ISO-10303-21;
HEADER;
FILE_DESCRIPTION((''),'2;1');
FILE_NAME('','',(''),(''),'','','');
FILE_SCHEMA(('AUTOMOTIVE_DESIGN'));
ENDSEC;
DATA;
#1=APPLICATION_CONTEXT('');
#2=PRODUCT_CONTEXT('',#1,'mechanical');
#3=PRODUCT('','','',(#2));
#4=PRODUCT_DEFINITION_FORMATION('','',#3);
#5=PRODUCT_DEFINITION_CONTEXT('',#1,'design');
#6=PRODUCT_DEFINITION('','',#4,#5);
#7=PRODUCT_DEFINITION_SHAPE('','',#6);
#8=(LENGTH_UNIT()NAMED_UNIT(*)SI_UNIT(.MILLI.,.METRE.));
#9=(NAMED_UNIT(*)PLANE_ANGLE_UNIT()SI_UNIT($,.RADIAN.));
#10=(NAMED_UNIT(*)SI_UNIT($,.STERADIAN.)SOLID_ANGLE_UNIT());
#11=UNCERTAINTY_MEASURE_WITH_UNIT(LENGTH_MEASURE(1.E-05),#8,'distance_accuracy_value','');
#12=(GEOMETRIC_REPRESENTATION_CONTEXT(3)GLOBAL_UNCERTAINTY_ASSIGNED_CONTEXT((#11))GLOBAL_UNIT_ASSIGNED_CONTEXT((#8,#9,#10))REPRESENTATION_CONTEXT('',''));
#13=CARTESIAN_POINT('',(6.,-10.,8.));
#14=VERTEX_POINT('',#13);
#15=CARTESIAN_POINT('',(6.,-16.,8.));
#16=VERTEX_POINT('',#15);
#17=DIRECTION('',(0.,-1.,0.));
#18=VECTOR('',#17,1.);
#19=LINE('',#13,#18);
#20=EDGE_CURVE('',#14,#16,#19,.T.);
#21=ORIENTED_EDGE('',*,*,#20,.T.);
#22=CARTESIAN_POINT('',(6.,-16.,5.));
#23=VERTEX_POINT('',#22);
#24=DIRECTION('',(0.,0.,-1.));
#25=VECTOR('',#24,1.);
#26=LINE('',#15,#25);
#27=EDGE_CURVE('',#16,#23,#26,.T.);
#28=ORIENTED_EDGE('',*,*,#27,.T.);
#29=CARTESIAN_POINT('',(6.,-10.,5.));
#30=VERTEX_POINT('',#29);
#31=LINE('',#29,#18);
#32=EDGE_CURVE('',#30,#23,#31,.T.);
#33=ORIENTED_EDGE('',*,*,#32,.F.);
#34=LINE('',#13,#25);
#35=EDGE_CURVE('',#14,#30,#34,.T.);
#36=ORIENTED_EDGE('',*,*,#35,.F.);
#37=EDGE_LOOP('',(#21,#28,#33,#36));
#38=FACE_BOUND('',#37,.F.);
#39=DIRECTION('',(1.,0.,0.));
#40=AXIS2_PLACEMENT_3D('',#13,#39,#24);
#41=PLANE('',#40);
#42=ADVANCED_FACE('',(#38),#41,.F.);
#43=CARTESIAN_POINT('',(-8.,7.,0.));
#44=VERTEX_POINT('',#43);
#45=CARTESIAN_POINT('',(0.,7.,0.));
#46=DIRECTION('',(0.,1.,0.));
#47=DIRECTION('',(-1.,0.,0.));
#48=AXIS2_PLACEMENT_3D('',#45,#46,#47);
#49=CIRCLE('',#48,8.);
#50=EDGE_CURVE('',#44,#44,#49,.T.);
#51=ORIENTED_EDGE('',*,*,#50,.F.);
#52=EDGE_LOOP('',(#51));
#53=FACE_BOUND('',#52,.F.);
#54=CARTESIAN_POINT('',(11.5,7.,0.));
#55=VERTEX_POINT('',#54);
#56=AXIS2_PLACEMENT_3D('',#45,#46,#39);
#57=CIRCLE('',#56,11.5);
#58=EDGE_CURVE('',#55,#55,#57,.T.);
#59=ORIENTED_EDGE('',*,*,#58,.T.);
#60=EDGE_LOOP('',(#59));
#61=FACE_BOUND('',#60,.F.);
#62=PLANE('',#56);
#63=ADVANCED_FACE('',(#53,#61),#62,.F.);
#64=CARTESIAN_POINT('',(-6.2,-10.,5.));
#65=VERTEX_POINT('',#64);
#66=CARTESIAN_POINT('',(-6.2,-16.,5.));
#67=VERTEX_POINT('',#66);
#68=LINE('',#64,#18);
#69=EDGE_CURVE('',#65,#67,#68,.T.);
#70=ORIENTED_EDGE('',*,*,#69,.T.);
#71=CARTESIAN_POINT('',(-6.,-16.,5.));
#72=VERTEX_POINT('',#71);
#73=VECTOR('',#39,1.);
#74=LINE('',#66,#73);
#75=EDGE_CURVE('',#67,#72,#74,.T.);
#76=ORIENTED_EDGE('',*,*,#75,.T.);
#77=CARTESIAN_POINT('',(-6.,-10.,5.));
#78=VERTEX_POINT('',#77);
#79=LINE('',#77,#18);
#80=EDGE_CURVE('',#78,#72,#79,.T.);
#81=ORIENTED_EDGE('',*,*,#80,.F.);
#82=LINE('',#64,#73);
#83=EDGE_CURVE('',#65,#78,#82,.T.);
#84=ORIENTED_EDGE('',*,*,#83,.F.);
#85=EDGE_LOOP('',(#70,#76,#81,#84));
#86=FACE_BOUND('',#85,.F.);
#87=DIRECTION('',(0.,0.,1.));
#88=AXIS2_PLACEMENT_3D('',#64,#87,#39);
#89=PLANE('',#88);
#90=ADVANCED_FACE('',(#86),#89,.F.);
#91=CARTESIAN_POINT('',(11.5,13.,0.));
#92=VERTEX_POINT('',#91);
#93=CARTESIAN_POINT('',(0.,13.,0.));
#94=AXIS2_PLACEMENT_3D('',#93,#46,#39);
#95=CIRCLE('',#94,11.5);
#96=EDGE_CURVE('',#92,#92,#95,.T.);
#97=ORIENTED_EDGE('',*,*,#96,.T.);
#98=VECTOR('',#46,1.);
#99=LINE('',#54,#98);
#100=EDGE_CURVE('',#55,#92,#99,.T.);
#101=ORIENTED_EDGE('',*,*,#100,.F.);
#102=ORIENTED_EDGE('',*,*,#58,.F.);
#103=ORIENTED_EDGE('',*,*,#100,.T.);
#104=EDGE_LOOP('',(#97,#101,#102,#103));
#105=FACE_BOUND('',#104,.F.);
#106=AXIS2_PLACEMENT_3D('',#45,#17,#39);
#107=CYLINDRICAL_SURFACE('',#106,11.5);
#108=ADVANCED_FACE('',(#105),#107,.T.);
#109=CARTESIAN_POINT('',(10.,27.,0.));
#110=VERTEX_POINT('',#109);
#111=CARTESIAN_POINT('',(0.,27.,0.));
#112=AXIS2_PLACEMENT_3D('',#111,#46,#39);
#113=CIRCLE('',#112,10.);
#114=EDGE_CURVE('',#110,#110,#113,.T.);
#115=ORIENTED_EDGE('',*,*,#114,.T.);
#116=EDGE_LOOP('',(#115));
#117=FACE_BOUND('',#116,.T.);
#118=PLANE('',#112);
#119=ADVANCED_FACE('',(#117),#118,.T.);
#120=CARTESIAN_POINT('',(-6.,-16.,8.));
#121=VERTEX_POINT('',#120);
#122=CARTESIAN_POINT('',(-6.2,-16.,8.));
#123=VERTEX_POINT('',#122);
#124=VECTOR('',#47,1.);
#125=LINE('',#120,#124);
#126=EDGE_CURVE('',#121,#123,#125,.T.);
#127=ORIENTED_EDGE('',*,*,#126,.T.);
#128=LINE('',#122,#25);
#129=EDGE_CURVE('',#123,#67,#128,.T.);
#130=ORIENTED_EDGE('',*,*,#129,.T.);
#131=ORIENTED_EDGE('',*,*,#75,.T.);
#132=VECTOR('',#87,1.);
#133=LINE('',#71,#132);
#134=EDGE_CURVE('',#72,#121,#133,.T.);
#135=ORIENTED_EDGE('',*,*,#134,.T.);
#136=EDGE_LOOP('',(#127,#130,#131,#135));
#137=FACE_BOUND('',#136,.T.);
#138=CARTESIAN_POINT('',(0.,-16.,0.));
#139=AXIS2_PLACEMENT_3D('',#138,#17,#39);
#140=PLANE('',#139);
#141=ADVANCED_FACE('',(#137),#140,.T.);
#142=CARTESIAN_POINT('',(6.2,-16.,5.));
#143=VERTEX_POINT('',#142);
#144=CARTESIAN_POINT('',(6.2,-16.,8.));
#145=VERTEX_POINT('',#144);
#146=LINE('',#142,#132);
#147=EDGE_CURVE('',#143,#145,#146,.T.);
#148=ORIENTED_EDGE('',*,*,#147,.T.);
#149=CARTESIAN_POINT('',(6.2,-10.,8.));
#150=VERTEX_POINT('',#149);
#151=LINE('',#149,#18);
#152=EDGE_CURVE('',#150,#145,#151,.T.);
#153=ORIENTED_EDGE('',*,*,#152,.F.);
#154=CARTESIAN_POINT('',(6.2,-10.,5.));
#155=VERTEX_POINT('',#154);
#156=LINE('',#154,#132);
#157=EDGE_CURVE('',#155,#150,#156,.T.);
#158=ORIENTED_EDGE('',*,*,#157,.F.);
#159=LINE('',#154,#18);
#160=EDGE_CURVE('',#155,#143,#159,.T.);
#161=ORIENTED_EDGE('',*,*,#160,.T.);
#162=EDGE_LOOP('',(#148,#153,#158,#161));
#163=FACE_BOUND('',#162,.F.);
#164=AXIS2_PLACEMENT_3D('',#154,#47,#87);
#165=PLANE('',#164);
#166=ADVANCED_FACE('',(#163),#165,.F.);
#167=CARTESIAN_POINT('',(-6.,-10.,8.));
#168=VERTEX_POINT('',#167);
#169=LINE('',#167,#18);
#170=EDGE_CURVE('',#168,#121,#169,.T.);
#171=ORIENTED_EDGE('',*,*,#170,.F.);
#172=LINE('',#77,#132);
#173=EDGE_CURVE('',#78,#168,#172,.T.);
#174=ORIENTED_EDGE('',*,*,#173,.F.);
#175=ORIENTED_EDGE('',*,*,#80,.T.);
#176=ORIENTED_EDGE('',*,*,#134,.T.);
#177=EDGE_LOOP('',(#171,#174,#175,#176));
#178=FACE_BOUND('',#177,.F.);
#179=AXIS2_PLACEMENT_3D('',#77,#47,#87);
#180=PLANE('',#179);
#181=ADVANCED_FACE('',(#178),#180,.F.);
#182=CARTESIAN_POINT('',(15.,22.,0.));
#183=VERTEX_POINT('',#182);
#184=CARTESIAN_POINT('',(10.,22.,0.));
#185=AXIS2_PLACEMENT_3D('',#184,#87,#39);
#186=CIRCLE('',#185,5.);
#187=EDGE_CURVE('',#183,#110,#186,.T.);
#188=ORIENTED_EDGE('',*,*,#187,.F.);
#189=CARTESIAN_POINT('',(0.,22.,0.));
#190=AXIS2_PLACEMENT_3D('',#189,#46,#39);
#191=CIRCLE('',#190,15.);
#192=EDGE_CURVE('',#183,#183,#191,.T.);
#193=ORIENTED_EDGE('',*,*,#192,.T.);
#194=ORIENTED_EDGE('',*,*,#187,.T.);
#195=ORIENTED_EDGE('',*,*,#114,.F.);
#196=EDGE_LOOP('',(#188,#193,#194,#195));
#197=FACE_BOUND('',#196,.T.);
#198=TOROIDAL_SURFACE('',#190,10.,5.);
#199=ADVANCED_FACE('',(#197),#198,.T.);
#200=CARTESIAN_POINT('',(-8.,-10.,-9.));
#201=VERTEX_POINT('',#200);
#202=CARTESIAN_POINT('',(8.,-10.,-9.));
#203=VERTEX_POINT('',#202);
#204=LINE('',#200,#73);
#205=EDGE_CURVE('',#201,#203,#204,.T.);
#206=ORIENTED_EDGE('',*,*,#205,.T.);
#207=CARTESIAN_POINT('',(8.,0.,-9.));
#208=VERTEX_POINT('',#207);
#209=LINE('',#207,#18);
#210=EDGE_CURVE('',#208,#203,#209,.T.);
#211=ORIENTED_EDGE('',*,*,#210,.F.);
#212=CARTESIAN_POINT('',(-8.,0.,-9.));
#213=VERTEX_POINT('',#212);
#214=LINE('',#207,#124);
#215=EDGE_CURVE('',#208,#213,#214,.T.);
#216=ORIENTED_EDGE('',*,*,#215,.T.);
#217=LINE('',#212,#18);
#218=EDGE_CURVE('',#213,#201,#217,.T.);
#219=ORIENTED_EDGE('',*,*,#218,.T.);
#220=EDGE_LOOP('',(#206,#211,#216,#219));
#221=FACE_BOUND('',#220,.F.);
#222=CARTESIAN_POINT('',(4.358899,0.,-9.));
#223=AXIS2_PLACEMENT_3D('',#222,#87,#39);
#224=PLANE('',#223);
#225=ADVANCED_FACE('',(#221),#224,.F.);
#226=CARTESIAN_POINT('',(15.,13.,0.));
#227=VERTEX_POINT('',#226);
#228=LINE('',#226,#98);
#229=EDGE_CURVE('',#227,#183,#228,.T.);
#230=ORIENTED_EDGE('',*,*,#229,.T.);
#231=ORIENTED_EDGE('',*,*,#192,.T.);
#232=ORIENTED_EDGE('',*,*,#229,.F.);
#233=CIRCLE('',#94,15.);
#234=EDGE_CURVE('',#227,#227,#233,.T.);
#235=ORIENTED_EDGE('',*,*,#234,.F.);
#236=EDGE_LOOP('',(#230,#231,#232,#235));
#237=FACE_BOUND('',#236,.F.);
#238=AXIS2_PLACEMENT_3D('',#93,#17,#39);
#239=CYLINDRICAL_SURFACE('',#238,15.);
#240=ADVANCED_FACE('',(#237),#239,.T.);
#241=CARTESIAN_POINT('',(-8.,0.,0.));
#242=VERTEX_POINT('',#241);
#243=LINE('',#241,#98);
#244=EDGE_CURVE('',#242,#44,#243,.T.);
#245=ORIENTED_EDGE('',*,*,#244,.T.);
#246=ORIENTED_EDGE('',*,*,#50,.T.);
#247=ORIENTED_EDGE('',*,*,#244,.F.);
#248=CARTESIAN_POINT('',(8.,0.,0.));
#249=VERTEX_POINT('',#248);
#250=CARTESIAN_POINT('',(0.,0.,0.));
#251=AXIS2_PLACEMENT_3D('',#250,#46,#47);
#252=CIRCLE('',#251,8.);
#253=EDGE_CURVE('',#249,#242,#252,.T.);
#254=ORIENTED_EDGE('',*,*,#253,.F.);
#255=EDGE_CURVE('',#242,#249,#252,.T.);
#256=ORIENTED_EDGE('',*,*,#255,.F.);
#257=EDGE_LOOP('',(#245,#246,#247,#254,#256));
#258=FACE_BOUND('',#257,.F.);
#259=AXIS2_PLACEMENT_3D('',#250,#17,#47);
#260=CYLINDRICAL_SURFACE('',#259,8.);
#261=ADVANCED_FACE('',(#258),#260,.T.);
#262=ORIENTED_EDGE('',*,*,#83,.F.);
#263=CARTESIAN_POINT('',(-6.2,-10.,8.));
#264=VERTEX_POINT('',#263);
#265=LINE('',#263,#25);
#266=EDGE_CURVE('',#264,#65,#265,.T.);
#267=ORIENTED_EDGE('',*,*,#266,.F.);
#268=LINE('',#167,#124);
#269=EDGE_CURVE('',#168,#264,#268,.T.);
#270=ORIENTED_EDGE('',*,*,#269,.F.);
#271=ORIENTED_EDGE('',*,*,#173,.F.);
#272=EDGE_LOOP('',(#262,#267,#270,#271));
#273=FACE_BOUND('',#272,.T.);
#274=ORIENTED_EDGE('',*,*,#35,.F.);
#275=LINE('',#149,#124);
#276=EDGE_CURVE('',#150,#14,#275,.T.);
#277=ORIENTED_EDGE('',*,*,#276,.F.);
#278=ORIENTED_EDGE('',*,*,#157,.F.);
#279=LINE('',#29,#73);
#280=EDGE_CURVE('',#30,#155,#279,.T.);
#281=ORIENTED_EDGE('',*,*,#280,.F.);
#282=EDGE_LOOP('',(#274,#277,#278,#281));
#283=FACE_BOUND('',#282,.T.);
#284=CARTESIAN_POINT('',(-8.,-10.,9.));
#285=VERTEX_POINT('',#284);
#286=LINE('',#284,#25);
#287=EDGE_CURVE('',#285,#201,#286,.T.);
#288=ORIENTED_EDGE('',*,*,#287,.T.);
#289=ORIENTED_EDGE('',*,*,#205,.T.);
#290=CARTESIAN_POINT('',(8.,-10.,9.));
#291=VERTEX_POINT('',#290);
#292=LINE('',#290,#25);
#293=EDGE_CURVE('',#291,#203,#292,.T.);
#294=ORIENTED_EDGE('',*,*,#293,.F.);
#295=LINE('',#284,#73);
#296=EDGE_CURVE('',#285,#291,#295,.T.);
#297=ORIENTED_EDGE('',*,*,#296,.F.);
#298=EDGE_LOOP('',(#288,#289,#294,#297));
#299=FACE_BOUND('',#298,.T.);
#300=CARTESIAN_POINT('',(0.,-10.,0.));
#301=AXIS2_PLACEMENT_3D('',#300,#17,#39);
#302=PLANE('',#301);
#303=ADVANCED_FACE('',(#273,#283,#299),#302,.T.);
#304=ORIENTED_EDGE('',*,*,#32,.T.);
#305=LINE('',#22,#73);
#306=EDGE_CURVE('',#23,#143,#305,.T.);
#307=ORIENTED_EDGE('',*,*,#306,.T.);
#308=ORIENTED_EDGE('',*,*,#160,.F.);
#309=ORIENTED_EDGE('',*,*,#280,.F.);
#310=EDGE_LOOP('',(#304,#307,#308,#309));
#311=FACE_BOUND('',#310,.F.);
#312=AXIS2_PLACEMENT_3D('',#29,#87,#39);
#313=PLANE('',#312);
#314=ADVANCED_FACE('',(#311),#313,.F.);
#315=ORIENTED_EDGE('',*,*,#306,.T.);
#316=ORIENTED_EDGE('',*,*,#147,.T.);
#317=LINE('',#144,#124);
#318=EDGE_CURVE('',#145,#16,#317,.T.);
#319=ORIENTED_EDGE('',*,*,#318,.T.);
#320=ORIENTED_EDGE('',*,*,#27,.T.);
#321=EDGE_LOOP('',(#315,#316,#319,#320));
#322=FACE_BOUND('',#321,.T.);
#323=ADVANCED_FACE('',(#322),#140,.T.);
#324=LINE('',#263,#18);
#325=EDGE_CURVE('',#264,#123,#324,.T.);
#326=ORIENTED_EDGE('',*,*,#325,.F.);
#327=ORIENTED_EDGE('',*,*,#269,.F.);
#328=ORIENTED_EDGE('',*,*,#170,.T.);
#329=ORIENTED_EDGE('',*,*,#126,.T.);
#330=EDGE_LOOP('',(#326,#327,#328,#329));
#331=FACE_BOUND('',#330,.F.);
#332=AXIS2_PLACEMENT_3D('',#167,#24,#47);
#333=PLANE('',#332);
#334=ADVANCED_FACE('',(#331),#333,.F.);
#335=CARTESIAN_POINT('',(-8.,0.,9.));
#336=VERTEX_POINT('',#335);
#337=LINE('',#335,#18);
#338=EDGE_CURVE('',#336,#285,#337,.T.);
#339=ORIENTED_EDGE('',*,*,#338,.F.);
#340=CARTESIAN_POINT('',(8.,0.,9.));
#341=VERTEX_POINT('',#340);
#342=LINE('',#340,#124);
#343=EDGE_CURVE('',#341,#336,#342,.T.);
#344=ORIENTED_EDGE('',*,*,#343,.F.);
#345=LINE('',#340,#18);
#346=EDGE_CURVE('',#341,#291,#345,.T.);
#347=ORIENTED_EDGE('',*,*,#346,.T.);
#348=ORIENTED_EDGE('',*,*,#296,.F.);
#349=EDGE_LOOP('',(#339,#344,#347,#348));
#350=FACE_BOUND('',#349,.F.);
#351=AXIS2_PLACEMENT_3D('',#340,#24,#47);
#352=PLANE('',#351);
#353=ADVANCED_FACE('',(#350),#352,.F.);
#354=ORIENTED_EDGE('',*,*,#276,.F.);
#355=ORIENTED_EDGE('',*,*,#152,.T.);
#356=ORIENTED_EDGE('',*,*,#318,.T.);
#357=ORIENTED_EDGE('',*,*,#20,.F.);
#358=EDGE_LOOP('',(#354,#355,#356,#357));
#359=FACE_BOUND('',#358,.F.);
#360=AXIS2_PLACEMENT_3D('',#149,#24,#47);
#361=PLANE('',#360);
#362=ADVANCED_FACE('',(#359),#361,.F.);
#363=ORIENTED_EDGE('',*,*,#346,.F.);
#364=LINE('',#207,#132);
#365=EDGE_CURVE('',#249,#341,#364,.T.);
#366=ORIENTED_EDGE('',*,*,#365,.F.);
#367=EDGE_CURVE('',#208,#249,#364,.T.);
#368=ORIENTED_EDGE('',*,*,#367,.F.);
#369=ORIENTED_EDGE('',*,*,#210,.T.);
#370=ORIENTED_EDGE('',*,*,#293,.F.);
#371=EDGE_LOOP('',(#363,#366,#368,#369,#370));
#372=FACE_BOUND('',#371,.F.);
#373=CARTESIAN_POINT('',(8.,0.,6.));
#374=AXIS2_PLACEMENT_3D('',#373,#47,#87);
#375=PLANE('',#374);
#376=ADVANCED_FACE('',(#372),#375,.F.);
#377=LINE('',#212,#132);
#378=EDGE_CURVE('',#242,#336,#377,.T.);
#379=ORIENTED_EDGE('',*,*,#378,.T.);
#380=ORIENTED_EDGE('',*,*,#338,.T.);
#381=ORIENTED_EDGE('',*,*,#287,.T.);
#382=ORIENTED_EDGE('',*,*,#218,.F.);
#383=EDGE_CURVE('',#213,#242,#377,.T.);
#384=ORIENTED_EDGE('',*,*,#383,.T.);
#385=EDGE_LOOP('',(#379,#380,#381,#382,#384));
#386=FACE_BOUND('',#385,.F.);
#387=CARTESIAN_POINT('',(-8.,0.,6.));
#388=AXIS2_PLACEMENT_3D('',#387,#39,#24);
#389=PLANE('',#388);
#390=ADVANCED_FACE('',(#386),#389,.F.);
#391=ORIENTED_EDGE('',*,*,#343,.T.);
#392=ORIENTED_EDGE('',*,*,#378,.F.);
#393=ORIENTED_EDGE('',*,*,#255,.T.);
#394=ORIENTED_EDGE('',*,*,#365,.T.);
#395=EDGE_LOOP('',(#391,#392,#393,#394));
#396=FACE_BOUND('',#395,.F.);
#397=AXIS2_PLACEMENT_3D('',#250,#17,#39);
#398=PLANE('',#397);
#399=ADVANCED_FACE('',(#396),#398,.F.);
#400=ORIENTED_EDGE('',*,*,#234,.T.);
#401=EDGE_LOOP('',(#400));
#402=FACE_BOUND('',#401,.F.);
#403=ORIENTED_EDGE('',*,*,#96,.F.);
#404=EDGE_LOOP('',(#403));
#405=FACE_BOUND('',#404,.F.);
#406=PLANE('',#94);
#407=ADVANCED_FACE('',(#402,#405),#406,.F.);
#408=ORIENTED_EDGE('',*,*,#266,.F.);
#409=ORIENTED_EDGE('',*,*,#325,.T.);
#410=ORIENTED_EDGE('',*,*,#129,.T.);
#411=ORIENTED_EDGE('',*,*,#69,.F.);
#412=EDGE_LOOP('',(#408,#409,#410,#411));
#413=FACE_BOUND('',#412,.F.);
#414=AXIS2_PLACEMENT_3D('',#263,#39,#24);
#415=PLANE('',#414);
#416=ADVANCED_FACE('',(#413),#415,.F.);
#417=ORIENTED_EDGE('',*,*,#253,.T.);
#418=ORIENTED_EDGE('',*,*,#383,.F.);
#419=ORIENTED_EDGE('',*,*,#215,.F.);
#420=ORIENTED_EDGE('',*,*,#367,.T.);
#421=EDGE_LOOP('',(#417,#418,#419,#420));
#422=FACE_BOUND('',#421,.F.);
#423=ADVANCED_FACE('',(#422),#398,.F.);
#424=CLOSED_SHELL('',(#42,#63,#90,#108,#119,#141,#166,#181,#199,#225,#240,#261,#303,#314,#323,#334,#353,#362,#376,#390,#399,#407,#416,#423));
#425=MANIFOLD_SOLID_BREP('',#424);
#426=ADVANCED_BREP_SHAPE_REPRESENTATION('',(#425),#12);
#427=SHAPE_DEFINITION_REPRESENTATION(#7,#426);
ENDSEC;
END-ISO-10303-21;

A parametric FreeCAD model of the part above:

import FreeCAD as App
import Part
import Sketcher
Q = App.Units.Quantity


def edges_at(feature, points):
    """Names of the edges that pass closest to the given points."""
    edges = feature.Shape.Edges
    near = lambda p: min(range(len(edges)), key=lambda i: edges[i].distToShape(Part.Vertex(*p))[0])
    return sorted({f"Edge{near(p) + 1}" for p in points})

doc = App.newDocument("Part")
body = doc.addObject("PartDesign::Body", "Body")

# Sketch on XZ plane
sketch1 = doc.addObject("Sketcher::SketchObject", "Sketch")
body.addObject(sketch1)
sketch1.AttachmentSupport = (doc.XZ_Plane, [""])
sketch1.MapMode = "FlatFace"
sketch1.addGeometry(Part.Circle(App.Vector(0, 0, 0), App.Vector(0, 0, 1), 8), False)
sketch1.addConstraint(Sketcher.Constraint("Coincident", 0, 3, -1, 1))
sketch1.addConstraint(Sketcher.Constraint("Diameter", 0, Q("16 mm")))
pad1 = doc.addObject("PartDesign::Pad", "Pad")
body.addObject(pad1)
pad1.Profile = sketch1
pad1.Length = 7
pad1.Reversed = True

# Sketch on XZ plane
sketch2 = doc.addObject("Sketcher::SketchObject", "Sketch001")
body.addObject(sketch2)
sketch2.AttachmentSupport = (doc.XZ_Plane, [""])
sketch2.MapMode = "FlatFace"
sketch2.AttachmentOffset = App.Placement(App.Vector(0, 0, -7), App.Rotation())
sketch2.addGeometry(Part.Circle(App.Vector(0, 0, 0), App.Vector(0, 0, 1), 11.5), False)
sketch2.addConstraint(Sketcher.Constraint("Coincident", 0, 3, -1, 1))
sketch2.addConstraint(Sketcher.Constraint("Diameter", 0, Q("23 mm")))
pad2 = doc.addObject("PartDesign::Pad", "Pad001")
body.addObject(pad2)
pad2.Profile = sketch2
pad2.Length = 6
pad2.Reversed = True

# Sketch on XZ plane
sketch3 = doc.addObject("Sketcher::SketchObject", "Sketch002")
body.addObject(sketch3)
sketch3.AttachmentSupport = (doc.XZ_Plane, [""])
sketch3.MapMode = "FlatFace"
sketch3.AttachmentOffset = App.Placement(App.Vector(0, 0, -13), App.Rotation())
sketch3.addGeometry(Part.Circle(App.Vector(0, 0, 0), App.Vector(0, 0, 1), 15), False)
sketch3.addConstraint(Sketcher.Constraint("Coincident", 0, 3, -1, 1))
sketch3.addConstraint(Sketcher.Constraint("Diameter", 0, Q("30 mm")))
pad3 = doc.addObject("PartDesign::Pad", "Pad002")
body.addObject(pad3)
pad3.Profile = sketch3
pad3.Length = 14
pad3.Reversed = True
doc.recompute()

fillet = doc.addObject("PartDesign::Fillet", "Fillet")
body.addObject(fillet)
fillet.Base = (pad3, edges_at(pad3, [(-15, 27, 0)]))
fillet.Radius = 5

# Sketch on XZ plane
sketch4 = doc.addObject("Sketcher::SketchObject", "Sketch003")
body.addObject(sketch4)
sketch4.AttachmentSupport = (doc.XZ_Plane, [""])
sketch4.MapMode = "FlatFace"
sketch4.addGeometry(Part.LineSegment(App.Vector(8, 9, 0), App.Vector(-8, 9, 0)), False)
sketch4.addGeometry(Part.LineSegment(App.Vector(-8, 9, 0), App.Vector(-8, -9, 0)), False)
sketch4.addGeometry(Part.LineSegment(App.Vector(-8, -9, 0), App.Vector(8, -9, 0)), False)
sketch4.addGeometry(Part.LineSegment(App.Vector(8, -9, 0), App.Vector(8, 9, 0)), False)
sketch4.addConstraint(Sketcher.Constraint("Coincident", 0, 2, 1, 1))
sketch4.addConstraint(Sketcher.Constraint("Coincident", 1, 2, 2, 1))
sketch4.addConstraint(Sketcher.Constraint("Coincident", 2, 2, 3, 1))
sketch4.addConstraint(Sketcher.Constraint("Coincident", 3, 2, 0, 1))
sketch4.addConstraint(Sketcher.Constraint("Horizontal", 0))
sketch4.addConstraint(Sketcher.Constraint("Vertical", 1))
sketch4.addConstraint(Sketcher.Constraint("Horizontal", 2))
sketch4.addConstraint(Sketcher.Constraint("Vertical", 3))
sketch4.addConstraint(Sketcher.Constraint("Symmetric", 0, 2, 2, 2, -1, 1))
sketch4.addConstraint(Sketcher.Constraint("DistanceX", 0, 2, 0, 1, Q("16 mm")))
sketch4.addConstraint(Sketcher.Constraint("DistanceY", 1, 2, 1, 1, Q("18 mm")))
pad4 = doc.addObject("PartDesign::Pad", "Pad003")
body.addObject(pad4)
pad4.Profile = sketch4
pad4.Length = 10

# Sketch on XZ plane
sketch5 = doc.addObject("Sketcher::SketchObject", "Sketch004")
body.addObject(sketch5)
sketch5.AttachmentSupport = (doc.XZ_Plane, [""])
sketch5.MapMode = "FlatFace"
sketch5.AttachmentOffset = App.Placement(App.Vector(0, 0, 10), App.Rotation())
sketch5.addGeometry(Part.LineSegment(App.Vector(-6, 5, 0), App.Vector(-6, 8, 0)), False)
sketch5.addGeometry(Part.LineSegment(App.Vector(-6, 8, 0), App.Vector(-6.2, 8, 0)), False)
sketch5.addGeometry(Part.LineSegment(App.Vector(-6.2, 8, 0), App.Vector(-6.2, 5, 0)), False)
sketch5.addGeometry(Part.LineSegment(App.Vector(-6.2, 5, 0), App.Vector(-6, 5, 0)), False)
sketch5.addGeometry(Part.LineSegment(App.Vector(6.2, 5, 0), App.Vector(6.2, 8, 0)), False)
sketch5.addGeometry(Part.LineSegment(App.Vector(6.2, 8, 0), App.Vector(6, 8, 0)), False)
sketch5.addGeometry(Part.LineSegment(App.Vector(6, 8, 0), App.Vector(6, 5, 0)), False)
sketch5.addGeometry(Part.LineSegment(App.Vector(6, 5, 0), App.Vector(6.2, 5, 0)), False)
sketch5.addConstraint(Sketcher.Constraint("Coincident", 0, 2, 1, 1))
sketch5.addConstraint(Sketcher.Constraint("Coincident", 1, 2, 2, 1))
sketch5.addConstraint(Sketcher.Constraint("Coincident", 2, 2, 3, 1))
sketch5.addConstraint(Sketcher.Constraint("Coincident", 3, 2, 0, 1))
sketch5.addConstraint(Sketcher.Constraint("Coincident", 4, 2, 5, 1))
sketch5.addConstraint(Sketcher.Constraint("Coincident", 5, 2, 6, 1))
sketch5.addConstraint(Sketcher.Constraint("Coincident", 6, 2, 7, 1))
sketch5.addConstraint(Sketcher.Constraint("Coincident", 7, 2, 4, 1))
sketch5.addConstraint(Sketcher.Constraint("Vertical", 0))
sketch5.addConstraint(Sketcher.Constraint("Horizontal", 1))
sketch5.addConstraint(Sketcher.Constraint("Vertical", 2))
sketch5.addConstraint(Sketcher.Constraint("Horizontal", 3))
sketch5.addConstraint(Sketcher.Constraint("Vertical", 4))
sketch5.addConstraint(Sketcher.Constraint("Horizontal", 5))
sketch5.addConstraint(Sketcher.Constraint("Vertical", 6))
sketch5.addConstraint(Sketcher.Constraint("Horizontal", 7))
sketch5.addConstraint(Sketcher.Constraint("Symmetric", 1, 2, 4, 2, -2))
sketch5.addConstraint(Sketcher.Constraint("Symmetric", 3, 2, 6, 2, -2))
sketch5.addConstraint(Sketcher.Constraint("DistanceY", 0, 1, 0, 2, Q("3 mm")))
sketch5.addConstraint(Sketcher.Constraint("DistanceX", 1, 2, 1, 1, Q("0.2 mm")))
sketch5.addConstraint(Sketcher.Constraint("DistanceX", 0, 2, -1, 1, Q("6 mm")))
sketch5.addConstraint(Sketcher.Constraint("DistanceY", -1, 1, 0, 2, Q("8 mm")))
pad5 = doc.addObject("PartDesign::Pad", "Pad004")
body.addObject(pad5)
pad5.Profile = sketch5
pad5.Length = 6

doc.recompute()
